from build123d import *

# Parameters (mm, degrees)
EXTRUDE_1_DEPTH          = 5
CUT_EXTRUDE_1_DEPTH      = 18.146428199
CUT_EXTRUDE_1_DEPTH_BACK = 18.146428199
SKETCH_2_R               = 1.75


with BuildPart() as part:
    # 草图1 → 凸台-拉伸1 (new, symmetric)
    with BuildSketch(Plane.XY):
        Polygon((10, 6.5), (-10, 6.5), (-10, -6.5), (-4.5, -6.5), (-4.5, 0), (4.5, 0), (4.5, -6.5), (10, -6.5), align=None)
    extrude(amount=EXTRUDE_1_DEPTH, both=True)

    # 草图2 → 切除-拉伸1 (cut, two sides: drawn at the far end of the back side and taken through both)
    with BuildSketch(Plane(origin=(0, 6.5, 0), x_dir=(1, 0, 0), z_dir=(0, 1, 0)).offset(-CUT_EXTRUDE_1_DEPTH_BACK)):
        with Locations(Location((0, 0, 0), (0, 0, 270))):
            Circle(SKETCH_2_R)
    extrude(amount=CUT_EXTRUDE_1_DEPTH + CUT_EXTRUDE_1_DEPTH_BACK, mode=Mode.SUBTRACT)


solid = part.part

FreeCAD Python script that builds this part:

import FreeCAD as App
import Part
import Sketcher
from FreeCAD import Vector

doc = App.newDocument("Part")
body = doc.addObject("PartDesign::Body", "Body")

sketch1 = doc.addObject("Sketcher::SketchObject", "Sketch")
body.addObject(sketch1)
sketch1.AttachmentSupport = (doc.XY_Plane, [""])
sketch1.MapMode = "FlatFace"
sketch1.addGeometry(Part.LineSegment(Vector(10, 6.5, 0), Vector(-10, 6.5, 0)), False)
sketch1.addGeometry(Part.LineSegment(Vector(-10, 6.5, 0), Vector(-10, -6.5, 0)), False)
sketch1.addGeometry(Part.LineSegment(Vector(-10, -6.5, 0), Vector(-4.5, -6.5, 0)), False)
sketch1.addGeometry(Part.LineSegment(Vector(-4.5, -6.5, 0), Vector(-4.5, 0, 0)), False)
sketch1.addGeometry(Part.LineSegment(Vector(-4.5, 0, 0), Vector(4.5, 0, 0)), False)
sketch1.addGeometry(Part.LineSegment(Vector(4.5, 0, 0), Vector(4.5, -6.5, 0)), False)
sketch1.addGeometry(Part.LineSegment(Vector(4.5, -6.5, 0), Vector(10, -6.5, 0)), False)
sketch1.addGeometry(Part.LineSegment(Vector(10, -6.5, 0), Vector(10, 6.5, 0)), False)
sketch1.addConstraint(Sketcher.Constraint("Coincident", 0, 2, 1, 1))
sketch1.addConstraint(Sketcher.Constraint("Coincident", 1, 2, 2, 1))
sketch1.addConstraint(Sketcher.Constraint("Coincident", 2, 2, 3, 1))
sketch1.addConstraint(Sketcher.Constraint("Coincident", 3, 2, 4, 1))
sketch1.addConstraint(Sketcher.Constraint("Coincident", 4, 2, 5, 1))
sketch1.addConstraint(Sketcher.Constraint("Coincident", 5, 2, 6, 1))
sketch1.addConstraint(Sketcher.Constraint("Coincident", 6, 2, 7, 1))
sketch1.addConstraint(Sketcher.Constraint("Coincident", 7, 2, 0, 1))
sketch1.addConstraint(Sketcher.Constraint("Horizontal", 0))
sketch1.addConstraint(Sketcher.Constraint("Vertical", 1))
sketch1.addConstraint(Sketcher.Constraint("Horizontal", 2))
sketch1.addConstraint(Sketcher.Constraint("Vertical", 3))
sketch1.addConstraint(Sketcher.Constraint("Horizontal", 4))
sketch1.addConstraint(Sketcher.Constraint("Vertical", 5))
sketch1.addConstraint(Sketcher.Constraint("Horizontal", 6))
sketch1.addConstraint(Sketcher.Constraint("Vertical", 7))
sketch1.addConstraint(Sketcher.Constraint("Symmetric", 3, 2, 4, 2, -1, 1))
sketch1.addConstraint(Sketcher.Constraint("Symmetric", 0, 2, 6, 2, -1, 1))
sketch1.addConstraint(Sketcher.Constraint("Horizontal", 2, 2, 5, 2))
sketch1.addConstraint(Sketcher.Constraint("DistanceX", 0, 2, 0, 1, 20.0))
sketch1.addConstraint(Sketcher.Constraint("DistanceX", 4, 1, 4, 2, 9.0))
sketch1.addConstraint(Sketcher.Constraint("DistanceY", 1, 2, 1, 1, 13.0))
pad1 = doc.addObject("PartDesign::Pad", "Pad")
body.addObject(pad1)
pad1.Profile = sketch1
pad1.Length = 10
pad1.Midplane = True

sketch2 = doc.addObject("Sketcher::SketchObject", "Sketch001")
body.addObject(sketch2)
sketch2.AttachmentSupport = (doc.XZ_Plane, [""])
sketch2.MapMode = "FlatFace"
sketch2.AttachmentOffset = App.Placement(Vector(0, 0, -6.5), App.Rotation())
sketch2.addGeometry(Part.Circle(Vector(0, 0, 0), Vector(0, 0, 1), 1.75), False)
sketch2.addConstraint(Sketcher.Constraint("Coincident", 0, 3, -1, 1))
sketch2.addConstraint(Sketcher.Constraint("Diameter", 0, 3.5))
pocket1 = doc.addObject("PartDesign::Pocket", "Pocket")
body.addObject(pocket1)
pocket1.Profile = sketch2
pocket1.Type = "ThroughAll"
pocket1.Midplane = True

doc.recompute()
